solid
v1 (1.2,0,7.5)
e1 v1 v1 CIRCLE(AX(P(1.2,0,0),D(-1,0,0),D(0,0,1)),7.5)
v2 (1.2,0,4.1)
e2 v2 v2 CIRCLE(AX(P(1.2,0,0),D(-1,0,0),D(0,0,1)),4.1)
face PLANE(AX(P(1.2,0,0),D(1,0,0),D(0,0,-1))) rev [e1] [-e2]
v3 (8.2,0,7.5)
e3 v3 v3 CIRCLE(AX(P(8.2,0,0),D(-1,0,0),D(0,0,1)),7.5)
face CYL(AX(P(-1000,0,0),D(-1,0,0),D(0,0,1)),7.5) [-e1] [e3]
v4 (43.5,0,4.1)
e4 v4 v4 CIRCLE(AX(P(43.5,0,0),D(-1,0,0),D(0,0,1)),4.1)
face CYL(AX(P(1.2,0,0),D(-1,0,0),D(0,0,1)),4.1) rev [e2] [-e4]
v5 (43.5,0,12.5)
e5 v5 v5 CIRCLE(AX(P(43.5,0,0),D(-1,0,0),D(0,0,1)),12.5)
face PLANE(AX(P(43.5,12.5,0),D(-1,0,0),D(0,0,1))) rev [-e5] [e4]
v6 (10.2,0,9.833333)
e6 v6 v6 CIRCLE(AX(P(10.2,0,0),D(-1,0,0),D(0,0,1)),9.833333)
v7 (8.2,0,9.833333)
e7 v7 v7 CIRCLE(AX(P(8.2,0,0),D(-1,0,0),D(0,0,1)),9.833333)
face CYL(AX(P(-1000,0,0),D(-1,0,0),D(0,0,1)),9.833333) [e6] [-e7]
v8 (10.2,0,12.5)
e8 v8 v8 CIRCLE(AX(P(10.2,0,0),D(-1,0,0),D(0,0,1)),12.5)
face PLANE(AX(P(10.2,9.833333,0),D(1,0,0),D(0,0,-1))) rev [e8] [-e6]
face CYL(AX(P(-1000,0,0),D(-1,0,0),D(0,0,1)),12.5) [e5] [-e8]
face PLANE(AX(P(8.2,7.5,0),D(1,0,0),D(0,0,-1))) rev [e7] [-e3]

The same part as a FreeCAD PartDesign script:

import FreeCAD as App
import Part
import Sketcher

V = App.Vector


def add_polygon(sketch, points):
    """Adds a closed chain of lines whose ends are joined by coincident constraints."""
    first, n = sketch.GeometryCount, len(points)
    for a, b in zip(points, points[1:] + points[:1]):
        sketch.addGeometry(Part.LineSegment(App.Vector(*a, 0), App.Vector(*b, 0)), False)
    for i in range(n):
        sketch.addConstraint(Sketcher.Constraint("Coincident", first + i, 2, first + (i + 1) % n, 1))

doc = App.newDocument("Part")
body = doc.addObject("PartDesign::Body", "Body")

sketch1 = doc.addObject("Sketcher::SketchObject", "Sketch")
body.addObject(sketch1)
sketch1.AttachmentSupport = (doc.XY_Plane, [""])
sketch1.MapMode = "FlatFace"
add_polygon(sketch1, [(1.2, 7.5), (1.2, 0), (43.5, 0), (43.5, 12.5), (10.2, 12.5), (10.2, 9.8), (8.2, 9.8), (8.2, 7.5)])
sketch1.addConstraint(Sketcher.Constraint("Vertical", 0))
sketch1.addConstraint(Sketcher.Constraint("Horizontal", 1))
sketch1.addConstraint(Sketcher.Constraint("Vertical", 2))
sketch1.addConstraint(Sketcher.Constraint("Horizontal", 3))
sketch1.addConstraint(Sketcher.Constraint("Vertical", 4))
sketch1.addConstraint(Sketcher.Constraint("Horizontal", 5))
sketch1.addConstraint(Sketcher.Constraint("Vertical", 6))
sketch1.addConstraint(Sketcher.Constraint("Horizontal", 7))
sketch1.addConstraint(Sketcher.Constraint("PointOnObject", 0, 2, -1))
sketch1.addConstraint(Sketcher.Constraint("DistanceX", 5, 2, 5, 1, 2.0))
sketch1.addConstraint(Sketcher.Constraint("DistanceX", 7, 2, 7, 1, 7.0))
sketch1.addConstraint(Sketcher.Constraint("DistanceX", 1, 1, 1, 2, 42.3))
sketch1.addConstraint(Sketcher.Constraint("DistanceY", 0, 2, 0, 1, 7.5))
sketch1.addConstraint(Sketcher.Constraint("DistanceY", 2, 1, 2, 2, 12.5))
sketch1.addConstraint(Sketcher.Constraint("DistanceX", -1, 1, 0, 2, 1.2))
sketch1.addConstraint(Sketcher.Constraint("DistanceY", 4, 2, 4, 1, 2.666667))
revolution = doc.addObject("PartDesign::Revolution", "Revolution")
body.addObject(revolution)
revolution.Profile = sketch1
revolution.ReferenceAxis = (sketch1, ["H_Axis"])
revolution.Angle = 360

sketch2 = doc.addObject("Sketcher::SketchObject", "Sketch001")
body.addObject(sketch2)
sketch2.AttachmentSupport = (doc.YZ_Plane, [""])
sketch2.MapMode = "FlatFace"
sketch2.AttachmentOffset = App.Placement(V(0, 0, 1.2), App.Rotation())
sketch2.addGeometry(Part.Circle(V(0, 0, 0), V(0, 0, 1), 4.1), False)
sketch2.addConstraint(Sketcher.Constraint("Coincident", 0, 3, -1, 1))
sketch2.addConstraint(Sketcher.Constraint("Diameter", 0, 8.2))
doc.recompute()
hole = doc.addObject("PartDesign::Hole", "Hole")
body.addObject(hole)
hole.Profile = sketch2
hole.ThreadType = "None"
hole.Diameter = 8.2
hole.DepthType = "ThroughAll"
hole.Reversed = True

doc.recompute()
